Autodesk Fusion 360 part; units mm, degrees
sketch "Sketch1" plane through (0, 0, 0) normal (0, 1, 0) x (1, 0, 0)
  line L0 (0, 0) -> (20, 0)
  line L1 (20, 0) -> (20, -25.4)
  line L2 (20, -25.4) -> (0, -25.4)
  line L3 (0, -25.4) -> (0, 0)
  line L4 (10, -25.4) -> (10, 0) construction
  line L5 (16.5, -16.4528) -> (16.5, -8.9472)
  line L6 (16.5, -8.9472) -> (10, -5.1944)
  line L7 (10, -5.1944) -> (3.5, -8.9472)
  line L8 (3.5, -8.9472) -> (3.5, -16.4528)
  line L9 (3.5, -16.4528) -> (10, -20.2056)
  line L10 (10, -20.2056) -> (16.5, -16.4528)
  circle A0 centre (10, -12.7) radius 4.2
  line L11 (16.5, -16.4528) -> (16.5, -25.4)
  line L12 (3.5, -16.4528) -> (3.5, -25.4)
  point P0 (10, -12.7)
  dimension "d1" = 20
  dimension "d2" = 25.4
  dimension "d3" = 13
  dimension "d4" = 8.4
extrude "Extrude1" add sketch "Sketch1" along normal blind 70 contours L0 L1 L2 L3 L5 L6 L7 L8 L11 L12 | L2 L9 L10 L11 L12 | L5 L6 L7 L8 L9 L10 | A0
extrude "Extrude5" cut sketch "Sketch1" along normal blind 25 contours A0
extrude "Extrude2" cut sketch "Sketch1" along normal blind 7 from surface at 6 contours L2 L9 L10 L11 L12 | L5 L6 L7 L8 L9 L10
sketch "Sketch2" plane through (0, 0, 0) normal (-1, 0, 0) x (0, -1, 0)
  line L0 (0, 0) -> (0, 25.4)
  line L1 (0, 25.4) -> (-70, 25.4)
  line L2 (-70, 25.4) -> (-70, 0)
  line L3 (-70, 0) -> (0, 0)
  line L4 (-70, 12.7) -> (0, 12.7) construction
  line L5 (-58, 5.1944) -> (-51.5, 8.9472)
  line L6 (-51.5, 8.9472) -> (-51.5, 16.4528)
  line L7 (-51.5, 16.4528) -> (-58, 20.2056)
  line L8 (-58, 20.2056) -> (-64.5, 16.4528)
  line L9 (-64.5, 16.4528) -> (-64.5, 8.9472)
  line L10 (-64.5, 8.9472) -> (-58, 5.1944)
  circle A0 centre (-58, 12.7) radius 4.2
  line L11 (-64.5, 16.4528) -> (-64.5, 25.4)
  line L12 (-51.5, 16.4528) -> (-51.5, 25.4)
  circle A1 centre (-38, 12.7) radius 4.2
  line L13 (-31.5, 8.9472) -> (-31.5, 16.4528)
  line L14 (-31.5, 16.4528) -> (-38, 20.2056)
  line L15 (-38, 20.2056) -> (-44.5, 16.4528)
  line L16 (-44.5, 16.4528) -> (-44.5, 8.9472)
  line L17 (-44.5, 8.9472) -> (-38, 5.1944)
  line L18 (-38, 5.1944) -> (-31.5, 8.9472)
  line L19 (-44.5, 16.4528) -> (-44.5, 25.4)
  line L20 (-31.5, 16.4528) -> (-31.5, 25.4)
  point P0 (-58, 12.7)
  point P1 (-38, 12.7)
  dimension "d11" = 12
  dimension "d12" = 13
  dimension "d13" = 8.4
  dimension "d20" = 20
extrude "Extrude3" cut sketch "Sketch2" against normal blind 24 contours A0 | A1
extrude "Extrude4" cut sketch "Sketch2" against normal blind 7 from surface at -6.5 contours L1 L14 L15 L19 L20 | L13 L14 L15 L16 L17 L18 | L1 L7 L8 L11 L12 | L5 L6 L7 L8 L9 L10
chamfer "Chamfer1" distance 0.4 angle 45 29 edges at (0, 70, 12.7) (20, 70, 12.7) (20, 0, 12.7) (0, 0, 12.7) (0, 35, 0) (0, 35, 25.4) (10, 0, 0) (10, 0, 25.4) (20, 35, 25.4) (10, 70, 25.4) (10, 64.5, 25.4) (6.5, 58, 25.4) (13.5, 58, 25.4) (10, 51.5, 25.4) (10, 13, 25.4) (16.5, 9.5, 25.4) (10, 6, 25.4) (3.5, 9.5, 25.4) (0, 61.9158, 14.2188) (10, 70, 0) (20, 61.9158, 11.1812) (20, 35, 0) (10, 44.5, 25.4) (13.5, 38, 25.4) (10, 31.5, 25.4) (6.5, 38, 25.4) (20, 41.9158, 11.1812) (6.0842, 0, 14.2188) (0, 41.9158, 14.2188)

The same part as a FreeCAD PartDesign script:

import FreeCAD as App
import Part
import Sketcher

V = App.Vector
Q = App.Units.Quantity


def edges_at(feature, points):
    """Names of the edges that pass closest to the given points."""
    edges = feature.Shape.Edges
    near = lambda p: min(range(len(edges)), key=lambda i: edges[i].distToShape(Part.Vertex(*p))[0])
    return sorted({f"Edge{near(p) + 1}" for p in points})

doc = App.newDocument("Part")
body = doc.addObject("PartDesign::Body", "Body")

sketch1 = body.newObject("Sketcher::SketchObject", "Sketch")
sketch1.AttachmentSupport = (doc.getObject("XZ_Plane"), [""])
sketch1.MapMode = "FlatFace"
sketch1.addGeometry(Part.LineSegment(V(20, 0, 0), V(0, 0, 0)), False)
sketch1.addGeometry(Part.LineSegment(V(0, 0, 0), V(0, 25, 0)), False)
sketch1.addGeometry(Part.LineSegment(V(0, 25, 0), V(20, 25, 0)), False)
sketch1.addGeometry(Part.LineSegment(V(20, 25, 0), V(20, 0, 0)), False)
sketch1.addConstraint(Sketcher.Constraint("Coincident", 0, 2, 1, 1))
sketch1.addConstraint(Sketcher.Constraint("Coincident", 1, 2, 2, 1))
sketch1.addConstraint(Sketcher.Constraint("Coincident", 2, 2, 3, 1))
sketch1.addConstraint(Sketcher.Constraint("Coincident", 3, 2, 0, 1))
sketch1.addConstraint(Sketcher.Constraint("Horizontal", 0))
sketch1.addConstraint(Sketcher.Constraint("Vertical", 1))
sketch1.addConstraint(Sketcher.Constraint("Horizontal", 2))
sketch1.addConstraint(Sketcher.Constraint("Vertical", 3))
sketch1.addConstraint(Sketcher.Constraint("Coincident", 0, 2, -1, 1))
sketch1.addConstraint(Sketcher.Constraint("DistanceX", 0, 2, 0, 1, Q("20 mm")))
sketch1.addConstraint(Sketcher.Constraint("DistanceY", 1, 1, 1, 2, Q("25.4 mm")))
pad1 = body.newObject("PartDesign::Pad", "Pad")
pad1.Profile = sketch1
pad1.Length = 70
pad1.Reversed = True

sketch2 = body.newObject("Sketcher::SketchObject", "Sketch001")
sketch2.AttachmentSupport = (doc.getObject("XZ_Plane"), [""])
sketch2.MapMode = "FlatFace"
sketch2.addGeometry(Part.Circle(V(10, 12.7, 0), V(0, 0, 1), 4.2), False)
sketch2.addConstraint(Sketcher.Constraint("Diameter", 0, Q("8.4 mm")))
sketch2.addConstraint(Sketcher.Constraint("DistanceX", -1, 1, 0, 3, Q("10 mm")))
sketch2.addConstraint(Sketcher.Constraint("DistanceY", -1, 1, 0, 3, Q("12.7 mm")))
pocket1 = body.newObject("PartDesign::Pocket", "Pocket")
pocket1.Profile = sketch2
pocket1.Length = 25

sketch3 = body.newObject("Sketcher::SketchObject", "Sketch002")
sketch3.AttachmentSupport = (doc.getObject("XZ_Plane"), [""])
sketch3.MapMode = "FlatFace"
sketch3.AttachmentOffset = App.Placement(V(0, 0, -6), App.Rotation())
sketch3.addGeometry(Part.LineSegment(V(3.5, 25.4, 0), V(16.5, 25.4, 0)), False)
sketch3.addGeometry(Part.LineSegment(V(16.5, 25.4, 0), V(16.5, 8.9, 0)), False)
sketch3.addGeometry(Part.LineSegment(V(16.5, 8.9, 0), V(10, 5.2, 0)), False)
sketch3.addGeometry(Part.LineSegment(V(10, 5.2, 0), V(3.5, 8.9, 0)), False)
sketch3.addGeometry(Part.LineSegment(V(3.5, 8.9, 0), V(3.5, 25.4, 0)), False)
sketch3.addGeometry(Part.Circle(V(10, 12.7, 0), V(0, 0, 1), 4.2), False)
sketch3.addConstraint(Sketcher.Constraint("Coincident", 0, 2, 1, 1))
sketch3.addConstraint(Sketcher.Constraint("Coincident", 1, 2, 2, 1))
sketch3.addConstraint(Sketcher.Constraint("Coincident", 2, 2, 3, 1))
sketch3.addConstraint(Sketcher.Constraint("Coincident", 3, 2, 4, 1))
sketch3.addConstraint(Sketcher.Constraint("Coincident", 4, 2, 0, 1))
sketch3.addConstraint(Sketcher.Constraint("Horizontal", 0))
sketch3.addConstraint(Sketcher.Constraint("Vertical", 1))
sketch3.addConstraint(Sketcher.Constraint("Vertical", 4))
sketch3.addConstraint(Sketcher.Constraint("Horizontal", 1, 2, 3, 2))
sketch3.addConstraint(Sketcher.Constraint("Vertical", 5, 3, 2, 2))
sketch3.addConstraint(Sketcher.Constraint("Equal", 2, 3))
sketch3.addConstraint(Sketcher.Constraint("Diameter", 5, Q("8.4 mm")))
sketch3.addConstraint(Sketcher.Constraint("DistanceX", 0, 1, 0, 2, Q("13 mm")))
sketch3.addConstraint(Sketcher.Constraint("DistanceY", -1, 1, 0, 2, Q("25.4 mm")))
sketch3.addConstraint(Sketcher.Constraint("Angle", 2, Q("-149.9998 deg")))
sketch3.addConstraint(Sketcher.Constraint("DistanceX", -1, 1, 5, 3, Q("10 mm")))
sketch3.addConstraint(Sketcher.Constraint("DistanceY", -1, 1, 5, 3, Q("12.7 mm")))
sketch3.addConstraint(Sketcher.Constraint("DistanceY", 1, 2, 1, 1, Q("16.4528 mm")))
pocket2 = body.newObject("PartDesign::Pocket", "Pocket001")
pocket2.Profile = sketch3
pocket2.Length = 7

sketch4 = body.newObject("Sketcher::SketchObject", "Sketch003")
sketch4.AttachmentSupport = (doc.getObject("YZ_Plane"), [""])
sketch4.MapMode = "FlatFace"
sketch4.addGeometry(Part.Circle(V(58, 12.7, 0), V(0, 0, 1), 4.2), False)
sketch4.addGeometry(Part.Circle(V(38, 12.7, 0), V(0, 0, 1), 4.2), False)
sketch4.addConstraint(Sketcher.Constraint("Equal", 0, 1))
sketch4.addConstraint(Sketcher.Constraint("Horizontal", 0, 3, 1, 3))
sketch4.addConstraint(Sketcher.Constraint("Diameter", 0, Q("8.4 mm")))
sketch4.addConstraint(Sketcher.Constraint("DistanceX", 1, 3, 0, 3, Q("20 mm")))
sketch4.addConstraint(Sketcher.Constraint("DistanceX", -1, 1, 0, 3, Q("58 mm")))
sketch4.addConstraint(Sketcher.Constraint("DistanceY", -1, 1, 0, 3, Q("12.7 mm")))
pocket3 = body.newObject("PartDesign::Pocket", "Pocket002")
pocket3.Profile = sketch4
pocket3.Length = 24
pocket3.Reversed = True

sketch5 = body.newObject("Sketcher::SketchObject", "Sketch004")
sketch5.AttachmentSupport = (doc.getObject("YZ_Plane"), [""])
sketch5.MapMode = "FlatFace"
sketch5.AttachmentOffset = App.Placement(V(0, 0, 6.5), App.Rotation())
sketch5.addGeometry(Part.LineSegment(V(31.5, 25.4, 0), V(44.5, 25.4, 0)), False)
sketch5.addGeometry(Part.LineSegment(V(44.5, 25.4, 0), V(44.5, 8.9, 0)), False)
sketch5.addGeometry(Part.LineSegment(V(44.5, 8.9, 0), V(38, 5.2, 0)), False)
sketch5.addGeometry(Part.LineSegment(V(38, 5.2, 0), V(31.5, 8.9, 0)), False)
sketch5.addGeometry(Part.LineSegment(V(31.5, 8.9, 0), V(31.5, 25.4, 0)), False)
sketch5.addGeometry(Part.Circle(V(38, 12.7, 0), V(0, 0, 1), 4.2), False)
sketch5.addGeometry(Part.LineSegment(V(51.5, 25.4, 0), V(64.5, 25.4, 0)), False)
sketch5.addGeometry(Part.LineSegment(V(64.5, 25.4, 0), V(64.5, 8.9, 0)), False)
sketch5.addGeometry(Part.LineSegment(V(64.5, 8.9, 0), V(58, 5.2, 0)), False)
sketch5.addGeometry(Part.LineSegment(V(58, 5.2, 0), V(51.5, 8.9, 0)), False)
sketch5.addGeometry(Part.LineSegment(V(51.5, 8.9, 0), V(51.5, 25.4, 0)), False)
sketch5.addGeometry(Part.Circle(V(58, 12.7, 0), V(0, 0, 1), 4.2), False)
sketch5.addConstraint(Sketcher.Constraint("Coincident", 0, 2, 1, 1))
sketch5.addConstraint(Sketcher.Constraint("Coincident", 1, 2, 2, 1))
sketch5.addConstraint(Sketcher.Constraint("Coincident", 2, 2, 3, 1))
sketch5.addConstraint(Sketcher.Constraint("Coincident", 3, 2, 4, 1))
sketch5.addConstraint(Sketcher.Constraint("Coincident", 4, 2, 0, 1))
sketch5.addConstraint(Sketcher.Constraint("Coincident", 6, 2, 7, 1))
sketch5.addConstraint(Sketcher.Constraint("Coincident", 7, 2, 8, 1))
sketch5.addConstraint(Sketcher.Constraint("Coincident", 8, 2, 9, 1))
sketch5.addConstraint(Sketcher.Constraint("Coincident", 9, 2, 10, 1))
sketch5.addConstraint(Sketcher.Constraint("Coincident", 10, 2, 6, 1))
sketch5.addConstraint(Sketcher.Constraint("Horizontal", 0))
sketch5.addConstraint(Sketcher.Constraint("Vertical", 1))
sketch5.addConstraint(Sketcher.Constraint("Vertical", 4))
sketch5.addConstraint(Sketcher.Constraint("Horizontal", 6))
sketch5.addConstraint(Sketcher.Constraint("Vertical", 7))
sketch5.addConstraint(Sketcher.Constraint("Vertical", 10))
sketch5.addConstraint(Sketcher.Constraint("Equal", 5, 11))
sketch5.addConstraint(Sketcher.Constraint("Parallel", 2, 8))
sketch5.addConstraint(Sketcher.Constraint("Parallel", 3, 9))
sketch5.addConstraint(Sketcher.Constraint("Horizontal", 5, 3, 11, 3))
sketch5.addConstraint(Sketcher.Constraint("Horizontal", 1, 2, 3, 2))
sketch5.addConstraint(Sketcher.Constraint("Horizontal", 4, 2, 6, 2))
sketch5.addConstraint(Sketcher.Constraint("Horizontal", 3, 2, 7, 2))
sketch5.addConstraint(Sketcher.Constraint("Horizontal", 2, 2, 8, 2))
sketch5.addConstraint(Sketcher.Constraint("Horizontal", 7, 2, 9, 2))
sketch5.addConstraint(Sketcher.Constraint("Vertical", 5, 3, 2, 2))
sketch5.addConstraint(Sketcher.Constraint("Vertical", 11, 3, 8, 2))
sketch5.addConstraint(Sketcher.Constraint("Equal", 2, 3))
sketch5.addConstraint(Sketcher.Constraint("Diameter", 5, Q("8.4 mm")))
sketch5.addConstraint(Sketcher.Constraint("DistanceX", 0, 1, 0, 2, Q("13 mm")))
sketch5.addConstraint(Sketcher.Constraint("DistanceX", 5, 3, 11, 3, Q("20 mm")))
sketch5.addConstraint(Sketcher.Constraint("Angle", 2, Q("-149.9998 deg")))
sketch5.addConstraint(Sketcher.Constraint("DistanceX", -1, 1, 5, 3, Q("38 mm")))
sketch5.addConstraint(Sketcher.Constraint("DistanceY", -1, 1, 5, 3, Q("12.7 mm")))
sketch5.addConstraint(Sketcher.Constraint("DistanceY", -1, 1, 0, 2, Q("25.4 mm")))
sketch5.addConstraint(Sketcher.Constraint("DistanceY", 1, 2, 1, 1, Q("16.4528 mm")))
pocket4 = body.newObject("PartDesign::Pocket", "Pocket003")
pocket4.Profile = sketch5
pocket4.Length = 7
pocket4.Reversed = True
doc.recompute()

chamfer = body.newObject("PartDesign::Chamfer", "Chamfer")
chamfer.Base = (pocket4, edges_at(pocket4, [
    (0, 70, 12.7),
    (20, 70, 12.7),
    (20, 0, 12.7),
    (0, 0, 12.7),
    (0, 35, 0),
    (0, 35, 25.4),
    (10, 0, 0),
    (10, 0, 25.4),
    (20, 35, 25.4),
    (10, 70, 25.4),
    (10, 64.5, 25.4),
    (6.5, 58, 25.4),
    (13.5, 58, 25.4),
    (10, 51.5, 25.4),
    (10, 13, 25.4),
    (16.5, 9.5, 25.4),
    (10, 6, 25.4),
    (3.5, 9.5, 25.4),
    (0, 61.916, 14.219),
    (10, 70, 0),
    (20, 61.916, 11.181),
    (20, 35, 0),
    (10, 44.5, 25.4),
    (13.5, 38, 25.4),
    (10, 31.5, 25.4),
    (6.5, 38, 25.4),
    (20, 41.916, 11.181),
    (6.084, 0, 14.219),
    (0, 41.916, 14.219),
]))
chamfer.Size = 0.4

doc.recompute()
